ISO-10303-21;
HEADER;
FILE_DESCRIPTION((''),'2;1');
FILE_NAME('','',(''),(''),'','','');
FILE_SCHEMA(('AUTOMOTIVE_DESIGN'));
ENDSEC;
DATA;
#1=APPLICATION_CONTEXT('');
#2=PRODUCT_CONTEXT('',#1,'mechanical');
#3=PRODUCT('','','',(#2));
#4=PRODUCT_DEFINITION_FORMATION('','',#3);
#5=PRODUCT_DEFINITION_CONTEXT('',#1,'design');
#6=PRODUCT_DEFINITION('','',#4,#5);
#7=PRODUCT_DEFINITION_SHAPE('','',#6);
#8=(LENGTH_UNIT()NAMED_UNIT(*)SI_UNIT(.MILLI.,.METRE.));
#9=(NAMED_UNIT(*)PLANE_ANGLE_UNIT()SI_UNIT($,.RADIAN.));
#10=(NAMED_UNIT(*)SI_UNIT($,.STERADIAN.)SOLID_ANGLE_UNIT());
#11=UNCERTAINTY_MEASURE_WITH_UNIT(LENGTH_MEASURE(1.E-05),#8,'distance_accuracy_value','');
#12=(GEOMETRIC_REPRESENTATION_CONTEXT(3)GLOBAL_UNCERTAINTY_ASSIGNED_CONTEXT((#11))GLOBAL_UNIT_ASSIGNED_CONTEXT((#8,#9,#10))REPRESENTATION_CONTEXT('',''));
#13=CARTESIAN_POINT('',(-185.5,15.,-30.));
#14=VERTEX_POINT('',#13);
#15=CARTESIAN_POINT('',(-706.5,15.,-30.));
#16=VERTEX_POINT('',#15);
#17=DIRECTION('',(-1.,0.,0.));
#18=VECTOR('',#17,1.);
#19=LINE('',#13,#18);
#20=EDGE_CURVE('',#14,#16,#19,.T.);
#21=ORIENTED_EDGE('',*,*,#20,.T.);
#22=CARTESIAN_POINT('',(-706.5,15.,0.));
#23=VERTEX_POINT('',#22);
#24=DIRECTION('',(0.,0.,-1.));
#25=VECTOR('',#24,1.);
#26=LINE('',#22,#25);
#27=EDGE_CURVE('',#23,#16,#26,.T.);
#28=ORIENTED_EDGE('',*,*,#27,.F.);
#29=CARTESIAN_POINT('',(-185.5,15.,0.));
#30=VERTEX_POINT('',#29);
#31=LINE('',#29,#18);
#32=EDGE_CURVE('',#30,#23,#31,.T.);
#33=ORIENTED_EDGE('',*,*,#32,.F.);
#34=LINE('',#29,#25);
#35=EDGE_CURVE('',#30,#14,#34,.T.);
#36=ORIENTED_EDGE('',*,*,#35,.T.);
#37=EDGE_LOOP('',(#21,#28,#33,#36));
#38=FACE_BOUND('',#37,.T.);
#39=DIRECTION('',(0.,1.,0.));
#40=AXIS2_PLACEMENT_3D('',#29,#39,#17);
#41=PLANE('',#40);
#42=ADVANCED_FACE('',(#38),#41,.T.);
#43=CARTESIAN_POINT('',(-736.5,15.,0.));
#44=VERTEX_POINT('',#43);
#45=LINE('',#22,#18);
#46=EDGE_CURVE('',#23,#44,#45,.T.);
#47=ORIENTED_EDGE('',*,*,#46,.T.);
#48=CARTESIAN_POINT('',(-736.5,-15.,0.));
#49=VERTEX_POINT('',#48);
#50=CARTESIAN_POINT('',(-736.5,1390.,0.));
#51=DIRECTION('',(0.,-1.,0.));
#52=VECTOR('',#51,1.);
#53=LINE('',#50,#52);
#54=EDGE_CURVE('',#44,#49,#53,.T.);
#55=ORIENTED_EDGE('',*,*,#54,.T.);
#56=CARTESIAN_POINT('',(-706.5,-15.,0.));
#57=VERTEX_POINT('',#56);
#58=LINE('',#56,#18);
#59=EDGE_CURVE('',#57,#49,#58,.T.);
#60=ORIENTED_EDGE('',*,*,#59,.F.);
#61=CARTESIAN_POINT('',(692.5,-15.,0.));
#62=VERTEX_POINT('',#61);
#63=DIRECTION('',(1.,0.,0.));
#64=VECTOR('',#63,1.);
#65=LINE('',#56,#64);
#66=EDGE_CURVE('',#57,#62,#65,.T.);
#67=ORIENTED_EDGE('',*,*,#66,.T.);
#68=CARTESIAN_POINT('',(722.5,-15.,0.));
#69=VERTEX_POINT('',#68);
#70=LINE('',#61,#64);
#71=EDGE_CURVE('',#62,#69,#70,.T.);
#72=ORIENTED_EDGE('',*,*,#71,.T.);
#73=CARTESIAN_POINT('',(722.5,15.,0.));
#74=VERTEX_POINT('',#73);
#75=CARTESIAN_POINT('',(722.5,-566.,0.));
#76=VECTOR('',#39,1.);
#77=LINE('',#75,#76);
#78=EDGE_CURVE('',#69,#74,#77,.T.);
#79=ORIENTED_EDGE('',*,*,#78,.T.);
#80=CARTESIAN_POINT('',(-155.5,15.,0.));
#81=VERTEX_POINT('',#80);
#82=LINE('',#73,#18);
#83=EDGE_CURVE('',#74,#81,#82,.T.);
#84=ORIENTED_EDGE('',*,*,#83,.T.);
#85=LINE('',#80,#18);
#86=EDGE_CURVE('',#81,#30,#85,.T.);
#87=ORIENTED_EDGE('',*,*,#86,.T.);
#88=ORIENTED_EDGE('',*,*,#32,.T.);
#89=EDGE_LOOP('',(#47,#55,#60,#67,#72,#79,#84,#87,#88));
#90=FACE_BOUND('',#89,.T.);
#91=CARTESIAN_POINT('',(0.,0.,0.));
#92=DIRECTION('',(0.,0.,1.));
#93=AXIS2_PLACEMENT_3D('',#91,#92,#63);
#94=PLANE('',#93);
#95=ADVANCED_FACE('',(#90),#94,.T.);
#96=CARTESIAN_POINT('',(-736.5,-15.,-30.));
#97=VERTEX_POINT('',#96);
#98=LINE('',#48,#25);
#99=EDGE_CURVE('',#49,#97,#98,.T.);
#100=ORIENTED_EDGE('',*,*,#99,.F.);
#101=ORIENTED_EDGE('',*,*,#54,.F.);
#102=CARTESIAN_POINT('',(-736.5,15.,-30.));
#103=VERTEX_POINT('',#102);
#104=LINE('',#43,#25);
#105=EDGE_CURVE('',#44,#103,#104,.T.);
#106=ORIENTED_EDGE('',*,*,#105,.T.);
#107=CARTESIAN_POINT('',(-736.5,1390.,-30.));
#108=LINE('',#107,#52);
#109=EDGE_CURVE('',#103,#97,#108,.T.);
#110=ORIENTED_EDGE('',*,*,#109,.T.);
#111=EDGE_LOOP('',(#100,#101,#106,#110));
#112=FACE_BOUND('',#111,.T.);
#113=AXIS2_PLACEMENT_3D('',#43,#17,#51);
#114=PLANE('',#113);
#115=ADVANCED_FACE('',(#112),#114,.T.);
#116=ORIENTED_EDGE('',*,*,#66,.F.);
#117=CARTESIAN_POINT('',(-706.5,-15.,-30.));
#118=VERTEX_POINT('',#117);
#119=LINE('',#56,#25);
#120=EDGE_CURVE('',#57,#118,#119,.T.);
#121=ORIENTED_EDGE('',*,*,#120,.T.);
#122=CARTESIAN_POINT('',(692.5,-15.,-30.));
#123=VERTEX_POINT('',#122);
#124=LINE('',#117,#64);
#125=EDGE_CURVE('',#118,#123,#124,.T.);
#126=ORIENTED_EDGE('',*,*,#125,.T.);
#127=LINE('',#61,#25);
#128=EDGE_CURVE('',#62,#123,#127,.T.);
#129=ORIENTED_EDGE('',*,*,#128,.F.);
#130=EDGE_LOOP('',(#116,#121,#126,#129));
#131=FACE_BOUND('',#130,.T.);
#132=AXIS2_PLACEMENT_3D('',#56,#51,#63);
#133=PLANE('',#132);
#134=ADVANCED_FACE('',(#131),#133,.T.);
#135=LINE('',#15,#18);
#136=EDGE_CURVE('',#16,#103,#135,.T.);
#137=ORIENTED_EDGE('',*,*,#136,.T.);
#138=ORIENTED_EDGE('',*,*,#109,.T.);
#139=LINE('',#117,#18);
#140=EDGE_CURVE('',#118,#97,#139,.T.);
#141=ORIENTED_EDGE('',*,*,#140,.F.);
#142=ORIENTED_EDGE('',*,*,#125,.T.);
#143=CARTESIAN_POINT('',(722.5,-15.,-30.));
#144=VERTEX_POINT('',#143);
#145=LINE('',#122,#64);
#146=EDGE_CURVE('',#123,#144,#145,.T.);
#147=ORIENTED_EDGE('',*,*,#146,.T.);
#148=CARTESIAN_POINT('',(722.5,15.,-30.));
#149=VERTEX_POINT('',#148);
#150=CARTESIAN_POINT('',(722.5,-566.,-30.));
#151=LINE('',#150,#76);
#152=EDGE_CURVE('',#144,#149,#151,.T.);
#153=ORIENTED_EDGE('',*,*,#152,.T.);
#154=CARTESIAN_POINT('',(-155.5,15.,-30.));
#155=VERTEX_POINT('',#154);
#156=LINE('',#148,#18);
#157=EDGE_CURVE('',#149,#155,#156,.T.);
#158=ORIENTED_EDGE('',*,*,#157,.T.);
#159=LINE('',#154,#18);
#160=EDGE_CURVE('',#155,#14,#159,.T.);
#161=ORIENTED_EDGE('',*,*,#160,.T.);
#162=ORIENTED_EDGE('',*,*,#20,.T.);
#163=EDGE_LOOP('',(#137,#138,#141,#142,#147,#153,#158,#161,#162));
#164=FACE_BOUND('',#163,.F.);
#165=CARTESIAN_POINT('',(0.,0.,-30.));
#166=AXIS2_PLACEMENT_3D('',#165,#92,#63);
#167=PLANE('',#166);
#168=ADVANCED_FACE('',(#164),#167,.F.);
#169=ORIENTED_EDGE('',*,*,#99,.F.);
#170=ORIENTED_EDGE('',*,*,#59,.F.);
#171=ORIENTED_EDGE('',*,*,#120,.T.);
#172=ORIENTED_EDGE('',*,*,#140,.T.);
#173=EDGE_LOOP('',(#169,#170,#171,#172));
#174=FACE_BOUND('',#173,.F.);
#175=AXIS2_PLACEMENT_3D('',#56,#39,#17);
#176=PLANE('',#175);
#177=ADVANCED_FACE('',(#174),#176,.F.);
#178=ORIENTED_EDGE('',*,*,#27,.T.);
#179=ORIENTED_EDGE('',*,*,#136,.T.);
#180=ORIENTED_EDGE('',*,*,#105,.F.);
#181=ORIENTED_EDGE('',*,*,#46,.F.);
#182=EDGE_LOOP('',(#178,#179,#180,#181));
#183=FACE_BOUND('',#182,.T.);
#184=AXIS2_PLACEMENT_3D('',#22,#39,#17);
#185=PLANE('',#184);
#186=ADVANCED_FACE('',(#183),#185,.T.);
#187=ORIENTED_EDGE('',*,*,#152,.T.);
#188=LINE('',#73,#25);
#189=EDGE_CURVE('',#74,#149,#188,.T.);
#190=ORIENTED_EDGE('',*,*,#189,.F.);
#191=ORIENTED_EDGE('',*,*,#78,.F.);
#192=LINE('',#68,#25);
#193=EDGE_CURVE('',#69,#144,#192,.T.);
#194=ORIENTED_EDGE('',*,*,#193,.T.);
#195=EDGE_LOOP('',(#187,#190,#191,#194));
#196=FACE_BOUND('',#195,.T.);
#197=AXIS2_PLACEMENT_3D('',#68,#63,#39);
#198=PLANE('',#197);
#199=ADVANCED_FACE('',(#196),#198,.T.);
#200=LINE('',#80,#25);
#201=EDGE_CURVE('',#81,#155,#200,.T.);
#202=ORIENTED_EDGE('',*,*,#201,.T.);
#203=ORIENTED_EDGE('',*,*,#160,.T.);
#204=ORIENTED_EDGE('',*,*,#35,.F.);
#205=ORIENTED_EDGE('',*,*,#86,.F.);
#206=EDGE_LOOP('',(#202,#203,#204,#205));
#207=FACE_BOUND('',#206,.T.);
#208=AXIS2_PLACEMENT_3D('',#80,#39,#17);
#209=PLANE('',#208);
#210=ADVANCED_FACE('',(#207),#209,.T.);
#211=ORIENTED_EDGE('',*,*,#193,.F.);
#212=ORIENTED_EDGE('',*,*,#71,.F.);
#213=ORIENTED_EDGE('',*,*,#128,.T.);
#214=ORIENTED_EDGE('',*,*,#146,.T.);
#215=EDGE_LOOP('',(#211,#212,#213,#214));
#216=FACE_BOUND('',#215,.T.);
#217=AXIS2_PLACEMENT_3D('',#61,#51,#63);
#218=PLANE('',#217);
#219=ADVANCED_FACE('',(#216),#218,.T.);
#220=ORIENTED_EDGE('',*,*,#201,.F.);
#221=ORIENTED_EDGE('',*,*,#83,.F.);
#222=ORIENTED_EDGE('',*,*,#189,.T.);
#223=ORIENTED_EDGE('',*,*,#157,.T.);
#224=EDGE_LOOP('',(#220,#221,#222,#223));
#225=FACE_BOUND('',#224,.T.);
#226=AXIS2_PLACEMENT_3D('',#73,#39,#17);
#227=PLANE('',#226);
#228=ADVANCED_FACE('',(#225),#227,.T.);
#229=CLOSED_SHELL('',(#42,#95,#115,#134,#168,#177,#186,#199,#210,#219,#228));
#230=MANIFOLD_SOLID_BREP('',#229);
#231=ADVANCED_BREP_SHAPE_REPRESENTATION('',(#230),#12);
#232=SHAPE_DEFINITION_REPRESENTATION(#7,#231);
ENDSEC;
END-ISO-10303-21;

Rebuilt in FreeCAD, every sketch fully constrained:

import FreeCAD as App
import Part
import Sketcher

V = App.Vector
Q = App.Units.Quantity


def add_polygon(sketch, points):
    """Adds a closed chain of lines whose ends are joined by coincident constraints."""
    first, n = sketch.GeometryCount, len(points)
    for a, b in zip(points, points[1:] + points[:1]):
        sketch.addGeometry(Part.LineSegment(App.Vector(*a, 0), App.Vector(*b, 0)), False)
    for i in range(n):
        sketch.addConstraint(Sketcher.Constraint("Coincident", first + i, 2, first + (i + 1) % n, 1))

doc = App.newDocument("Part")
body = doc.addObject("PartDesign::Body", "Body")

# Sketch on XY plane
sketch1 = body.newObject("Sketcher::SketchObject", "Sketch")
sketch1.AttachmentSupport = (doc.getObject("XY_Plane"), [""])
sketch1.MapMode = "FlatFace"
add_polygon(sketch1, [(722.5, 15), (-736.5, 15), (-736.5, -15), (722.5, -15)])  # lines 0-3
sketch1.addConstraint([
    Sketcher.Constraint("Horizontal", 0),
    Sketcher.Constraint("Vertical", 1),
    Sketcher.Constraint("Horizontal", 2),
    Sketcher.Constraint("Vertical", 3),
    Sketcher.Constraint("DistanceX", 0, 2, 0, 1, Q("1459 mm")),
    Sketcher.Constraint("DistanceY", 1, 2, 1, 1, Q("30 mm")),
    Sketcher.Constraint("DistanceY", -1, 1, 0, 2, Q("15 mm")),
    Sketcher.Constraint("DistanceX", 0, 2, -1, 1, Q("736.5 mm")),
])
pad1 = body.newObject("PartDesign::Pad", "Pad")
pad1.Profile = sketch1
pad1.Length = 30
pad1.Reversed = True

doc.recompute()
